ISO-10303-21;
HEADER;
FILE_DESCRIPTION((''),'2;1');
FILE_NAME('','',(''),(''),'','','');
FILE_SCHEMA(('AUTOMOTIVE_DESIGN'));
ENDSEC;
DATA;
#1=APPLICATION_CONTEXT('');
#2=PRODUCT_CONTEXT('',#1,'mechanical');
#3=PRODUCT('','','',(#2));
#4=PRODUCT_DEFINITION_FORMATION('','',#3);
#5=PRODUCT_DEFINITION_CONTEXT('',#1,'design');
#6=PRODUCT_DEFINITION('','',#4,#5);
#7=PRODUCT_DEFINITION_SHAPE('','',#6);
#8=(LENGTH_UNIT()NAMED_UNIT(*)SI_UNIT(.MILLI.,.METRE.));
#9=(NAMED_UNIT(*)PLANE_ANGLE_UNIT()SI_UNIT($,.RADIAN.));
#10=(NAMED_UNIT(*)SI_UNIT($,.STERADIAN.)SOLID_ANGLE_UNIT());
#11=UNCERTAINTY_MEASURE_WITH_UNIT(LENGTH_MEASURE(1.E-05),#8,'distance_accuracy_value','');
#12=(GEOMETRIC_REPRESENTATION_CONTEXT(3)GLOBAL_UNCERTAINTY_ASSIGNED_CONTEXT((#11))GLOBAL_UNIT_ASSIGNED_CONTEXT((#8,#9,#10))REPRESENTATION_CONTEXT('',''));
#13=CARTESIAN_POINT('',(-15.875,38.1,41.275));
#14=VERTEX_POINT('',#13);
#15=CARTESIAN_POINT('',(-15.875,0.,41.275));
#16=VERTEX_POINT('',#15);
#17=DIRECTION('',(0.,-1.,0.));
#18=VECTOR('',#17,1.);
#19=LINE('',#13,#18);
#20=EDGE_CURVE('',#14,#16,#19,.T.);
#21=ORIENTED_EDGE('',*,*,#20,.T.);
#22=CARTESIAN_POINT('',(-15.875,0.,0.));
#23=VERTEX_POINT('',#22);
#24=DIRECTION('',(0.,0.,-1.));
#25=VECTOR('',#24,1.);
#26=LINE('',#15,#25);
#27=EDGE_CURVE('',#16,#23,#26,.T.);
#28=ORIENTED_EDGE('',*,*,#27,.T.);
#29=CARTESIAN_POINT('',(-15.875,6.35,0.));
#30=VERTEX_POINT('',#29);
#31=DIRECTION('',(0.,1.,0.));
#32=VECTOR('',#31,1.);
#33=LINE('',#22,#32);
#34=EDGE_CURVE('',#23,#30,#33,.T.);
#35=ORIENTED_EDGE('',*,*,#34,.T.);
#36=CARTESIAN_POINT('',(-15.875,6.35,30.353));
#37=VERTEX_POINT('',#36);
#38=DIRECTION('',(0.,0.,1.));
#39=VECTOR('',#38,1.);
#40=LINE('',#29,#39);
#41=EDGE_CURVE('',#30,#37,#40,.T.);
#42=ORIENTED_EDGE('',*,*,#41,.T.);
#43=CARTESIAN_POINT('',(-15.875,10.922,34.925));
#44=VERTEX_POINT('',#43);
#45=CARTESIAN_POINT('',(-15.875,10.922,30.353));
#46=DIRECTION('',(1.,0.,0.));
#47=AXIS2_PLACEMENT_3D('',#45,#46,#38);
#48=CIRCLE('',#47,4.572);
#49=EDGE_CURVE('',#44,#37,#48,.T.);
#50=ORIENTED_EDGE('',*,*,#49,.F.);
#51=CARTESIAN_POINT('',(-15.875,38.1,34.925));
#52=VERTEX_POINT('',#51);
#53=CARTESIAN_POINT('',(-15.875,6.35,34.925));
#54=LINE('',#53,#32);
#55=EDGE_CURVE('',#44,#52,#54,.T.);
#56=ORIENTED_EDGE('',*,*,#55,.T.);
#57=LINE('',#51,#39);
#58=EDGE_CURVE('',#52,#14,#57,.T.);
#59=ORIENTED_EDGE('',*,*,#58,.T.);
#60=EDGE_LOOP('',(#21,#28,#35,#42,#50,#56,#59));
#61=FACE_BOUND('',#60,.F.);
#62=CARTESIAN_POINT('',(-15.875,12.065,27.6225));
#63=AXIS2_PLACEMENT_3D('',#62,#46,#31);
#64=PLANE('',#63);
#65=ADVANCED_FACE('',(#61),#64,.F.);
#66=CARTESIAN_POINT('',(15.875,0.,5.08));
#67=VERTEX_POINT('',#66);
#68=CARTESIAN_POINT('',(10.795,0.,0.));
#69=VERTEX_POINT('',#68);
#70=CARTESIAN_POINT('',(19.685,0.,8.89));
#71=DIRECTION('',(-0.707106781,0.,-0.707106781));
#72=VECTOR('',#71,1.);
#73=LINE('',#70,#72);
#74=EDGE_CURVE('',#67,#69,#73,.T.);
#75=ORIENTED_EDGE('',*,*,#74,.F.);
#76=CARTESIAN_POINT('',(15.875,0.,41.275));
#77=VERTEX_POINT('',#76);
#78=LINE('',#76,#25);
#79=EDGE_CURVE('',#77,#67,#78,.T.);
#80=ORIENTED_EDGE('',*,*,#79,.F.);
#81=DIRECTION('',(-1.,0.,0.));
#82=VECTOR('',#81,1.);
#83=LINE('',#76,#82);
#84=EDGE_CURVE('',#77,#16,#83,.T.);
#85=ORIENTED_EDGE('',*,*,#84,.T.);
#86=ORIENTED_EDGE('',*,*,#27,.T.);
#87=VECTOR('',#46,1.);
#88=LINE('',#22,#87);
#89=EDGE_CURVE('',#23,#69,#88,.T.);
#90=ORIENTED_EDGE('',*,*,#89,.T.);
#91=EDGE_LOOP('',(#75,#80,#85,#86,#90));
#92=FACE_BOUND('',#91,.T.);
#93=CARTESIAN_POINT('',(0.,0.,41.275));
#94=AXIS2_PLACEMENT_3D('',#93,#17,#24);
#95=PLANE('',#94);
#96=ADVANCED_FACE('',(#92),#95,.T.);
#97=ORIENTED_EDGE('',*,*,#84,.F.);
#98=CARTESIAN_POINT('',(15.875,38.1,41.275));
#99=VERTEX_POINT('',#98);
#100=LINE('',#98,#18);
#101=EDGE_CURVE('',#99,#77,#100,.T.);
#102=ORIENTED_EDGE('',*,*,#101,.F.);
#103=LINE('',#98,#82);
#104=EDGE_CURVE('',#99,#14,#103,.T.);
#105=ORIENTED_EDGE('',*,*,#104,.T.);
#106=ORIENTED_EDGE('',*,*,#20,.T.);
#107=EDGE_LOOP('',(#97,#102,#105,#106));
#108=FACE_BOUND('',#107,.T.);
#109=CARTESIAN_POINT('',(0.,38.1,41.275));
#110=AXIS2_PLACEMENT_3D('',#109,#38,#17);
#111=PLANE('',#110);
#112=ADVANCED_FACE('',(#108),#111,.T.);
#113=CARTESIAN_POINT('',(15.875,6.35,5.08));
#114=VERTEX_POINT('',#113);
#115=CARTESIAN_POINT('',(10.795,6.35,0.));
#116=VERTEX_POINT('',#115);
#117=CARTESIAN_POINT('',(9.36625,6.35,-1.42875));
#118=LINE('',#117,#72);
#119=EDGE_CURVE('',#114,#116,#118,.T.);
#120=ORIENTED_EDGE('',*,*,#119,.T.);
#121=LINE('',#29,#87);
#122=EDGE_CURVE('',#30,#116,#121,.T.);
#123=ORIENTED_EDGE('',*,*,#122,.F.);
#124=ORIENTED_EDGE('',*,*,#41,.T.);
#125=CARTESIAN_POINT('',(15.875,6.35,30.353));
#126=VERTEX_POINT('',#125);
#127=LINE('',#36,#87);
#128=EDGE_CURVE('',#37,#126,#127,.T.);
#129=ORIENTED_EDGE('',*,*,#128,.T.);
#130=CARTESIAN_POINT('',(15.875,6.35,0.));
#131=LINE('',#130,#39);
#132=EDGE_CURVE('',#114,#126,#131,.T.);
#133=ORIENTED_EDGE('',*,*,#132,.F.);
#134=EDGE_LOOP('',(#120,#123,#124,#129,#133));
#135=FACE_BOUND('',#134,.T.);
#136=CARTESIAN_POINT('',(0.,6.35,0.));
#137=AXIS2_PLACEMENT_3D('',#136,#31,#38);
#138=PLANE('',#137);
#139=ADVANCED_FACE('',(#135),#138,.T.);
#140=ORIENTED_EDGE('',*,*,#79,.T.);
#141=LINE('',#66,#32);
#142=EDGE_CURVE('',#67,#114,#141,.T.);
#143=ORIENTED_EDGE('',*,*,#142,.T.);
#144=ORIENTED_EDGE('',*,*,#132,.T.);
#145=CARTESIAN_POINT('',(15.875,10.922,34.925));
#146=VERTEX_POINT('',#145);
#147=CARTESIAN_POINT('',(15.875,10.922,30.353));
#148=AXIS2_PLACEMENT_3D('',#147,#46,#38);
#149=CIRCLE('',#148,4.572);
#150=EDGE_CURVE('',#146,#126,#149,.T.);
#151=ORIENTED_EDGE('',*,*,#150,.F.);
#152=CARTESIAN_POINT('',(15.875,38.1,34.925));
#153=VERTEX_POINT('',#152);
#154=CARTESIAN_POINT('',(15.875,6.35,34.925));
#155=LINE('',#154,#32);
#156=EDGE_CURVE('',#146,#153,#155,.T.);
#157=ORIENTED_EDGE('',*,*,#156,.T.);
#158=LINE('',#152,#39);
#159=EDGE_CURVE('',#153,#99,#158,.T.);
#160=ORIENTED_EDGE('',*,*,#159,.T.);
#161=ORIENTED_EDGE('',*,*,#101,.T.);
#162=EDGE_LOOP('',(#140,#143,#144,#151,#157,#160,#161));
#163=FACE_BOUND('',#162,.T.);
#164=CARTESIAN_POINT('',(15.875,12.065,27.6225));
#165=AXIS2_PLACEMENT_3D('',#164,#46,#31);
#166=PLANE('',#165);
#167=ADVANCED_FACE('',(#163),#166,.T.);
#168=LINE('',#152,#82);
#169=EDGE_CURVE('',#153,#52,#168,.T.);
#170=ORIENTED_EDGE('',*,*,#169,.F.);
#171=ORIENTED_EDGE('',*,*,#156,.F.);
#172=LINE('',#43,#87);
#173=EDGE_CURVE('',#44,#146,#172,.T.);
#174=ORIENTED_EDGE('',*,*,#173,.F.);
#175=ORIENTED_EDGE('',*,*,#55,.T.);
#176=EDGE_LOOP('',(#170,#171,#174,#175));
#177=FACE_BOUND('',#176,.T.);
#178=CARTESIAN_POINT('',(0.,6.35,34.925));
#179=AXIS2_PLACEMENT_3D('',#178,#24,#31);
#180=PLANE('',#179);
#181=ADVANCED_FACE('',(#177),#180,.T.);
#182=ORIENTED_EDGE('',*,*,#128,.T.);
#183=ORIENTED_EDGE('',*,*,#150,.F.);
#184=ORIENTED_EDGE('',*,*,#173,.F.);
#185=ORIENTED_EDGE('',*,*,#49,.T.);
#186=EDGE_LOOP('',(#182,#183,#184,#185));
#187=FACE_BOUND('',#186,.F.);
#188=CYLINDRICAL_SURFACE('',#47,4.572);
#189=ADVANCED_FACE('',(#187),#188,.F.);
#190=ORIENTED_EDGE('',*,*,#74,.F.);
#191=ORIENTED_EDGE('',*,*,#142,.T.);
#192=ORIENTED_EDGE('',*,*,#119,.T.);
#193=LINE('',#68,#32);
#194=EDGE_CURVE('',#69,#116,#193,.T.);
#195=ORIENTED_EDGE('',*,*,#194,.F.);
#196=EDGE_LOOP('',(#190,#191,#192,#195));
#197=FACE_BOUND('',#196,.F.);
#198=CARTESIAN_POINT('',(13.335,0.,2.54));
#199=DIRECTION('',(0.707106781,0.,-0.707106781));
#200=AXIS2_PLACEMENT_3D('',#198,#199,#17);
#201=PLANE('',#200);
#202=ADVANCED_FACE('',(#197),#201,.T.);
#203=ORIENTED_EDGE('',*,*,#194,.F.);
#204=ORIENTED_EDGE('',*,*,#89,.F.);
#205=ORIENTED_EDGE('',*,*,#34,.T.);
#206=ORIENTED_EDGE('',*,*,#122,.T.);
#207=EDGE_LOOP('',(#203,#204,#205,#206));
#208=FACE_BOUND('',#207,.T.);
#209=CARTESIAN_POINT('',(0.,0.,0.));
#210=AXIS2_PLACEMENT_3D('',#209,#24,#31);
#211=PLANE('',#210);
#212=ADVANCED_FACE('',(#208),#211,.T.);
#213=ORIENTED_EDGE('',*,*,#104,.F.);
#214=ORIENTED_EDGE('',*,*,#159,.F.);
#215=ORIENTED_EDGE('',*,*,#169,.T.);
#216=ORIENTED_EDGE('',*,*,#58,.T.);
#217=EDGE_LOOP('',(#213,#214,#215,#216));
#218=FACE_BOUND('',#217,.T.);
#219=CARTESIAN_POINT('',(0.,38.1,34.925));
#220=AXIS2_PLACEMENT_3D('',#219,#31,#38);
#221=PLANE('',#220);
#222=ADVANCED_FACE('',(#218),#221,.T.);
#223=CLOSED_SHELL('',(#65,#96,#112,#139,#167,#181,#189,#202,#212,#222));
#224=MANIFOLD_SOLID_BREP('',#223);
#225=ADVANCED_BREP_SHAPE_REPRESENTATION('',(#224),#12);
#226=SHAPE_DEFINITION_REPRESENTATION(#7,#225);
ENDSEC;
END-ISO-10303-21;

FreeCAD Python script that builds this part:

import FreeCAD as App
import Part
import Sketcher
from FreeCAD import Vector
Q = App.Units.Quantity


def edges_at(feature, points):
    """Names of the edges that pass closest to the given points."""
    edges = feature.Shape.Edges
    near = lambda p: min(range(len(edges)), key=lambda i: edges[i].distToShape(Part.Vertex(*p))[0])
    return sorted({f"Edge{near(p) + 1}" for p in points})

doc = App.newDocument("Part")
body = doc.addObject("PartDesign::Body", "Body")

# Sketch on YZ plane
sketch1 = doc.addObject("Sketcher::SketchObject", "Sketch")
body.addObject(sketch1)
sketch1.AttachmentSupport = (doc.YZ_Plane, [""])
sketch1.MapMode = "FlatFace"
sketch1.addGeometry([
    Part.LineSegment(Vector(0, 41, 0), Vector(0, 0, 0)),  # 0
    Part.LineSegment(Vector(0, 0, 0), Vector(6, 0, 0)),  # 1
    Part.LineSegment(Vector(6, 0, 0), Vector(6, 35, 0)),  # 2
    Part.LineSegment(Vector(6, 35, 0), Vector(38, 35, 0)),  # 3
    Part.LineSegment(Vector(38, 35, 0), Vector(38, 41, 0)),  # 4
    Part.LineSegment(Vector(38, 41, 0), Vector(0, 41, 0)),  # 5
], False)
sketch1.addConstraint([
    Sketcher.Constraint("Coincident", 0, 2, 1, 1),
    Sketcher.Constraint("Coincident", 1, 2, 2, 1),
    Sketcher.Constraint("Coincident", 2, 2, 3, 1),
    Sketcher.Constraint("Coincident", 3, 2, 4, 1),
    Sketcher.Constraint("Coincident", 4, 2, 5, 1),
    Sketcher.Constraint("Coincident", 5, 2, 0, 1),
    Sketcher.Constraint("Vertical", 0),
    Sketcher.Constraint("Horizontal", 1),
    Sketcher.Constraint("Vertical", 2),
    Sketcher.Constraint("Horizontal", 3),
    Sketcher.Constraint("Vertical", 4),
    Sketcher.Constraint("Horizontal", 5),
    Sketcher.Constraint("Coincident", 0, 2, -1, 1),
    Sketcher.Constraint("Equal", 1, 4),
    Sketcher.Constraint("DistanceX", 5, 2, 5, 1, Q("1.5 in")),
    Sketcher.Constraint("DistanceX", 1, 1, 1, 2, Q("0.25 in")),
    Sketcher.Constraint("DistanceY", 0, 2, 0, 1, Q("1.625 in")),
])
pad1 = doc.addObject("PartDesign::Pad", "Pad")
body.addObject(pad1)
pad1.Profile = sketch1
pad1.Length = Q("1.25 in")
pad1.Midplane = True
doc.recompute()

fillet = doc.addObject("PartDesign::Fillet", "Fillet")
body.addObject(fillet)
fillet.Base = (pad1, edges_at(pad1, [(0, 6.35, 34.925)]))
fillet.Radius = Q("0.18 in")
doc.recompute()

chamfer = doc.addObject("PartDesign::Chamfer", "Chamfer")
body.addObject(chamfer)
chamfer.Base = (fillet, edges_at(fillet, [(15.875, 3.175, 0)]))
chamfer.Size = Q("0.2 in")

doc.recompute()
